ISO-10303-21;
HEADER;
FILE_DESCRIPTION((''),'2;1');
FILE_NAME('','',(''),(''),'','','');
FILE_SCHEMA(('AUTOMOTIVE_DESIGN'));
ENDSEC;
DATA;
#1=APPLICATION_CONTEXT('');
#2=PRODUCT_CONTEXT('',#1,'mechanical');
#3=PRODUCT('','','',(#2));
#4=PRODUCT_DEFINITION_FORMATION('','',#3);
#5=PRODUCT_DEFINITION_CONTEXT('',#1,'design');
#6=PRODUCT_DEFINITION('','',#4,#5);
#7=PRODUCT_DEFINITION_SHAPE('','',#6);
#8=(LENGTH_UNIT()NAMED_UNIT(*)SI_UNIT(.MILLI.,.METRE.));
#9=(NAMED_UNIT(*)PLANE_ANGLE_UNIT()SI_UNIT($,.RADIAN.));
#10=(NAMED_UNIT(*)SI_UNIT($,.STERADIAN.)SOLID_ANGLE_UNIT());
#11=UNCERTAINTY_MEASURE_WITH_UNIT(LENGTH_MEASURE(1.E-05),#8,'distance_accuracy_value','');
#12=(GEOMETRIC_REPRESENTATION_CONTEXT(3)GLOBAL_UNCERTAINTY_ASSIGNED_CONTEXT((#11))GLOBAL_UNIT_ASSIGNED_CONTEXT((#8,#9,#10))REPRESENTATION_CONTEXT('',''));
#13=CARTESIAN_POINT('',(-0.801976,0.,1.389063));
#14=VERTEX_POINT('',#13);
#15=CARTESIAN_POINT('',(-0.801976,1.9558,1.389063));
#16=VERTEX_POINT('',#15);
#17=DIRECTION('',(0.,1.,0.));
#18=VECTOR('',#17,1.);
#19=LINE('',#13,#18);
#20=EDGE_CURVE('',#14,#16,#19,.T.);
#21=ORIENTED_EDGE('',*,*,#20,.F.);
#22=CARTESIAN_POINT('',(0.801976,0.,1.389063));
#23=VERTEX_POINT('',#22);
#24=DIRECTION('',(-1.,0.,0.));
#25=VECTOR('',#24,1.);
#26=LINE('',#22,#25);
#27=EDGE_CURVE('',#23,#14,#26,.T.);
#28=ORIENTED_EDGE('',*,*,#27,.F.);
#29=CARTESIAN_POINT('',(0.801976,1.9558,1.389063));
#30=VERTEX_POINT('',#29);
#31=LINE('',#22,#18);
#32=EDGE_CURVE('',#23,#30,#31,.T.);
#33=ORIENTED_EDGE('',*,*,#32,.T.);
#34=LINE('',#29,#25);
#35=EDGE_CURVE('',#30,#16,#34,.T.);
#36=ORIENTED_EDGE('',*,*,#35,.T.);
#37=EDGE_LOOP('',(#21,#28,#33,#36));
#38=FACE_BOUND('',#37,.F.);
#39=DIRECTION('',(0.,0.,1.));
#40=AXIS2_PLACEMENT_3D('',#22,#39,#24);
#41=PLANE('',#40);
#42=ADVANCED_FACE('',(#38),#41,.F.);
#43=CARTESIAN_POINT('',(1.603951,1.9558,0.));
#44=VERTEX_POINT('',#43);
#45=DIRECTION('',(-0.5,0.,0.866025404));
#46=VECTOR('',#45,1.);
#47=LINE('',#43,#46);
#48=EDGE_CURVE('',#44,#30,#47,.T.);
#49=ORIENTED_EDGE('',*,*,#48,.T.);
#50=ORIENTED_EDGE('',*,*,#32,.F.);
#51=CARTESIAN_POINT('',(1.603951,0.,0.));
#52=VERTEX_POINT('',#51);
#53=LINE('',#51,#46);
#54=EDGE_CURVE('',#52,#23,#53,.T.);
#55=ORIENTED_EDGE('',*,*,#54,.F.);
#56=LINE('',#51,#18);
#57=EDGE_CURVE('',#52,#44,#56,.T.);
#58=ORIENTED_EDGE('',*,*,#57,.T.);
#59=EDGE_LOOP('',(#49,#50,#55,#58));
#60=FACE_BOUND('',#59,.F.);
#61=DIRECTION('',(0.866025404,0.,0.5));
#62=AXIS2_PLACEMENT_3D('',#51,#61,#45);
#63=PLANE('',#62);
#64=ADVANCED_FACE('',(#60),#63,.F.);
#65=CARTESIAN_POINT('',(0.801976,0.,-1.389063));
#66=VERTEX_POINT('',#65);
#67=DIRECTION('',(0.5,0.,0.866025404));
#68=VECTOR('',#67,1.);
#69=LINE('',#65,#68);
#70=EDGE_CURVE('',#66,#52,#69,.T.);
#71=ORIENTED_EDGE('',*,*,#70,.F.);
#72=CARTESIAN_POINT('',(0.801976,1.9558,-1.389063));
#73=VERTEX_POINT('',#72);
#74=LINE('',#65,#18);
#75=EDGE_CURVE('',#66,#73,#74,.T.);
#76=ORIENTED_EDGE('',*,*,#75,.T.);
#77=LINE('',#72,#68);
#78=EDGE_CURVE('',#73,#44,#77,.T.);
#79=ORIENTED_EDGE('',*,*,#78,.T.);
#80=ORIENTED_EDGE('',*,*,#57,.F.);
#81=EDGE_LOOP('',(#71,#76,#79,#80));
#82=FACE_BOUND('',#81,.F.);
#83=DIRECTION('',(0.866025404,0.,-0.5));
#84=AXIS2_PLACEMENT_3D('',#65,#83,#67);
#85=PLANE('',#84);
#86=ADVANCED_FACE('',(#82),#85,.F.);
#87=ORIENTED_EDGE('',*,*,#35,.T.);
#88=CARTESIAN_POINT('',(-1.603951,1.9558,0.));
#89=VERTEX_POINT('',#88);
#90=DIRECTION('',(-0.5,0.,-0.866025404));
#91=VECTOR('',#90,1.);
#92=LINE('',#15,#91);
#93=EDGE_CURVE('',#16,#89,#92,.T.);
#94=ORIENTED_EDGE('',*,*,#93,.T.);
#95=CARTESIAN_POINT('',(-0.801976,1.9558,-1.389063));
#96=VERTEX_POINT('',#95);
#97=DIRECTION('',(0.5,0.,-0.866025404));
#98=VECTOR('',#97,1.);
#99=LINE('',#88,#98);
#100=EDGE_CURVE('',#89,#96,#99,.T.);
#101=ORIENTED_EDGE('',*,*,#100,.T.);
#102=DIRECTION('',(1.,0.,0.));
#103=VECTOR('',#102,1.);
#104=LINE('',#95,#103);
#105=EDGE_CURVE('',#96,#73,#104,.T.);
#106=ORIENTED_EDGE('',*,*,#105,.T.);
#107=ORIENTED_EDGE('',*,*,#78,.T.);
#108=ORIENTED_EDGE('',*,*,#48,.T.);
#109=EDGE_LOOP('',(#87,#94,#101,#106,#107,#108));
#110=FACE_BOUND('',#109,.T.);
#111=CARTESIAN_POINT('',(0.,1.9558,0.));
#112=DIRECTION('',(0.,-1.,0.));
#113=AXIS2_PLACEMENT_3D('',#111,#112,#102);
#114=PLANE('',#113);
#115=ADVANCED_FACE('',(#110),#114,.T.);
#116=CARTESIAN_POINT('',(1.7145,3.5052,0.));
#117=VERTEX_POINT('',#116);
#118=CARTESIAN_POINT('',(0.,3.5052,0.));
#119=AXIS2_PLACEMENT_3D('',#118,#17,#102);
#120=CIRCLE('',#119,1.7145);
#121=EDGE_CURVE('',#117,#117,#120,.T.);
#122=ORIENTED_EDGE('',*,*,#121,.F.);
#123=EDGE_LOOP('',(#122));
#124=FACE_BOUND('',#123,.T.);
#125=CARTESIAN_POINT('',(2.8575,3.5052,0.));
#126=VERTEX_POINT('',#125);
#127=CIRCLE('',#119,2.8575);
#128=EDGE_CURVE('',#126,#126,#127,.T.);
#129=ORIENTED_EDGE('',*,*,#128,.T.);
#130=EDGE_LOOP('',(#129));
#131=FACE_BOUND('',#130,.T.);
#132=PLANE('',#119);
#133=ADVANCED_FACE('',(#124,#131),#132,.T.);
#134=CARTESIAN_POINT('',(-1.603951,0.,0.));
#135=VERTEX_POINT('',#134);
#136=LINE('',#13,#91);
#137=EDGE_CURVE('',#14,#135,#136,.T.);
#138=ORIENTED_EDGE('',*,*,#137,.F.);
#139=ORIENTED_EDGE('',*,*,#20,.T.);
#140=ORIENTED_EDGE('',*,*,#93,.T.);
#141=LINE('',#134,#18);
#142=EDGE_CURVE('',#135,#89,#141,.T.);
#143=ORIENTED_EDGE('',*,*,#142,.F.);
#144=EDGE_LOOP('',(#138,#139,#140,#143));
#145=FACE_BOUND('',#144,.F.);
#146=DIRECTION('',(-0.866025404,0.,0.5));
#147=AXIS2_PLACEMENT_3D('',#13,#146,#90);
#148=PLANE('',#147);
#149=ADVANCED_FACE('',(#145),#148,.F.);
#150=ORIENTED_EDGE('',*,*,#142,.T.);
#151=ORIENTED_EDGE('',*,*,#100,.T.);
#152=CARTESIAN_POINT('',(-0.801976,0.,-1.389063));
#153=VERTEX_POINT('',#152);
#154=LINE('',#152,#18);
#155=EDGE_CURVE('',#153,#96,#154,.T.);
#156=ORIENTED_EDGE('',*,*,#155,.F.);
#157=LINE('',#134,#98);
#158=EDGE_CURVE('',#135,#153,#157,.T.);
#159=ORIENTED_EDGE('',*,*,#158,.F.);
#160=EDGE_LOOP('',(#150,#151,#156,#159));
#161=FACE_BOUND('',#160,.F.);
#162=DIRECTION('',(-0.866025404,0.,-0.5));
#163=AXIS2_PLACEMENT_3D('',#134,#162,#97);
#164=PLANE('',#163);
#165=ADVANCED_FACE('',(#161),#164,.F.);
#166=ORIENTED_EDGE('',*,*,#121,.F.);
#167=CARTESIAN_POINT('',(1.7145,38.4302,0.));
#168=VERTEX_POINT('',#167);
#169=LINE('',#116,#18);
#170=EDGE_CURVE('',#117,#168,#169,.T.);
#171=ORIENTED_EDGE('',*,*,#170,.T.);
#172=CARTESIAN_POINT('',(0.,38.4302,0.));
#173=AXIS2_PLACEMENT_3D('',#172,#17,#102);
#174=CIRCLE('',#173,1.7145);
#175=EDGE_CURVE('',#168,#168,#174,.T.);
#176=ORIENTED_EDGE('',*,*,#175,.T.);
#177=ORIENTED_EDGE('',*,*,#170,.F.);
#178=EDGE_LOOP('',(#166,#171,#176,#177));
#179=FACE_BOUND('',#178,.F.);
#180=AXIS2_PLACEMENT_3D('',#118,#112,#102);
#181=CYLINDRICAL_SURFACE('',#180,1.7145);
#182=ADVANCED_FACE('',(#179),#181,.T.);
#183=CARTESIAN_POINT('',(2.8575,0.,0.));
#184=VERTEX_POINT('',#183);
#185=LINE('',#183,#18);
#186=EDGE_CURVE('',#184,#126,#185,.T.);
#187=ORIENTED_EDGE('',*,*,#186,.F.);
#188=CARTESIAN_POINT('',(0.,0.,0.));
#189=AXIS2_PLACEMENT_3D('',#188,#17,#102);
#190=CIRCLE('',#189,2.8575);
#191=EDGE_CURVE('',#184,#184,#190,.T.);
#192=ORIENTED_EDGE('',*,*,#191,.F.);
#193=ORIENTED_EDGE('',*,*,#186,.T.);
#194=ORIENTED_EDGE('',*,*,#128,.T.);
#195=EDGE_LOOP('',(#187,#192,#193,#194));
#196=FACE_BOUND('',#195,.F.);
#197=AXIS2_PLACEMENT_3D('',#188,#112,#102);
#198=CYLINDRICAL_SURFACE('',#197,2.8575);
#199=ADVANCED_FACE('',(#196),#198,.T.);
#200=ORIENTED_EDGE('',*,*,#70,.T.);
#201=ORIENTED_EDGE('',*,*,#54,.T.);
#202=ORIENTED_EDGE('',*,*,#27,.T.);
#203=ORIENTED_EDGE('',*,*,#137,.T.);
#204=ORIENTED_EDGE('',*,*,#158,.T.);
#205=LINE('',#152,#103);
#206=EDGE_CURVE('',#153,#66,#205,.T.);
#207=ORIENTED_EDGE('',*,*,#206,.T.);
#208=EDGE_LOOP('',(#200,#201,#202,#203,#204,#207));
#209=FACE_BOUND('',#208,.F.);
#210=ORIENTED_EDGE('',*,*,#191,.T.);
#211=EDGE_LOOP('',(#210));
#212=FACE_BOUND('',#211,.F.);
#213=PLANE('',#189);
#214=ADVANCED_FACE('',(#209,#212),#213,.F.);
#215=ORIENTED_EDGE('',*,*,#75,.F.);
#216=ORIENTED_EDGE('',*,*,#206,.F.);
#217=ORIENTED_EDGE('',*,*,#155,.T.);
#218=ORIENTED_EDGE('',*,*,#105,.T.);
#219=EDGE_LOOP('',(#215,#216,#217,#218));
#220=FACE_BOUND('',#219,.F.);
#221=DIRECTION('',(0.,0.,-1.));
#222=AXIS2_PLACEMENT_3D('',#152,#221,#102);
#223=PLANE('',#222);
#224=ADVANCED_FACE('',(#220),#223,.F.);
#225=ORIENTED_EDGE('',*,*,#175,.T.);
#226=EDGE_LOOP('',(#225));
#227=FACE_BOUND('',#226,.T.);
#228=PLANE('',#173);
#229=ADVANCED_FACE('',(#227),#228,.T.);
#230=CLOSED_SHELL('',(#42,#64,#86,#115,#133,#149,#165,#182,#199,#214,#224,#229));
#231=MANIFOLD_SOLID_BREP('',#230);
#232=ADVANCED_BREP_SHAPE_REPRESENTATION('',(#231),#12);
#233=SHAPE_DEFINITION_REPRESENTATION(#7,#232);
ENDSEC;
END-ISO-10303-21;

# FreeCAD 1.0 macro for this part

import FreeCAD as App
import Part
import Sketcher

V = App.Vector
Q = App.Units.Quantity

doc = App.newDocument("Part")
params = doc.addObject("Spreadsheet::Sheet", "Params")
for row, (alias, value) in enumerate([
    ("sketch1_diameter", "0.225 in"),
    ("pad1_length", "0.138 in"),
    ("pocket1_length", "0.077 in"),
    ("sketch3_diameter", "0.135 in"),
    ("pad2_length", "1.375 in"),
], start=1):
    params.set(f"A{row}", alias)
    params.set(f"B{row}", "=" + value)
    params.setAlias(f"B{row}", alias)

body = doc.addObject("PartDesign::Body", "Body")

# Sketch on XZ plane
sketch1 = body.newObject("Sketcher::SketchObject", "Sketch")
sketch1.AttachmentSupport = (doc.getObject("XZ_Plane"), [""])
sketch1.MapMode = "FlatFace"
sketch1.addGeometry(Part.Circle(V(0, 0, 0), V(0, 0, 1), 2.8575), False)
sketch1.addConstraint([
    Sketcher.Constraint("Coincident", 0, 3, -1, 1),
    Sketcher.Constraint("Diameter", 0, Q("0.225 in")),
])
sketch1.setExpression("Constraints[1]", "Params.sketch1_diameter")
pad1 = body.newObject("PartDesign::Pad", "Pad")
pad1.Profile = sketch1
pad1.setExpression("Length", "Params.pad1_length")
pad1.Reversed = True

# Sketch on XZ plane
sketch2 = body.newObject("Sketcher::SketchObject", "Sketch001")
sketch2.AttachmentSupport = (doc.getObject("XZ_Plane"), [""])
sketch2.MapMode = "FlatFace"
sketch2.addGeometry([
    Part.LineSegment(V(1.603951, 0, 0), V(0.801976, 1.389063, 0)),  # 0
    Part.LineSegment(V(0.801976, 1.389063, 0), V(-0.801976, 1.389063, 0)),  # 1
    Part.LineSegment(V(-0.801976, 1.389063, 0), V(-1.603951, 0, 0)),  # 2
    Part.LineSegment(V(-1.603951, 0, 0), V(-0.801976, -1.389063, 0)),  # 3
    Part.LineSegment(V(-0.801976, -1.389063, 0), V(0.801976, -1.389063, 0)),  # 4
    Part.LineSegment(V(0.801976, -1.389063, 0), V(1.603951, 0, 0)),  # 5
], False)
sketch2.addConstraint([
    Sketcher.Constraint("Coincident", 0, 2, 1, 1),
    Sketcher.Constraint("Coincident", 1, 2, 2, 1),
    Sketcher.Constraint("Coincident", 2, 2, 3, 1),
    Sketcher.Constraint("Coincident", 3, 2, 4, 1),
    Sketcher.Constraint("Coincident", 4, 2, 5, 1),
    Sketcher.Constraint("Coincident", 5, 2, 0, 1),
    Sketcher.Constraint("Horizontal", 1),
    Sketcher.Constraint("Horizontal", 4),
    Sketcher.Constraint("Symmetric", 0, 2, 3, 2, -1, 1),
    Sketcher.Constraint("Symmetric", 2, 2, 5, 2, -1, 1),
    Sketcher.Constraint("PointOnObject", 2, 2, -1),
    Sketcher.Constraint("Parallel", 2, 5),
    Sketcher.Constraint("Vertical", 1, 2, 3, 2),
    Sketcher.Constraint("Angle", 0, Q("120 deg")),
    Sketcher.Constraint("DistanceY", 3, 2, 1, 2, Q("0.109375 in")),
    Sketcher.Constraint("DistanceX", 1, 2, 1, 1, Q("1.603951 mm")),
])
pocket1 = body.newObject("PartDesign::Pocket", "Pocket")
pocket1.Profile = sketch2
pocket1.setExpression("Length", "Params.pocket1_length")

# Sketch on XZ plane
sketch3 = body.newObject("Sketcher::SketchObject", "Sketch002")
sketch3.AttachmentSupport = (doc.getObject("XZ_Plane"), [""])
sketch3.MapMode = "FlatFace"
sketch3.AttachmentOffset = App.Placement(V(0, 0, -0.138 * 25.4), App.Rotation())
sketch3.addGeometry(Part.Circle(V(0, 0, 0), V(0, 0, 1), 1.7145), False)
sketch3.addConstraint([
    Sketcher.Constraint("Coincident", 0, 3, -1, 1),
    Sketcher.Constraint("Diameter", 0, Q("0.135 in")),
])
sketch3.setExpression("Constraints[1]", "Params.sketch3_diameter")
pad2 = body.newObject("PartDesign::Pad", "Pad001")
pad2.Profile = sketch3
pad2.setExpression("Length", "Params.pad2_length")
pad2.Reversed = True

doc.recompute()
